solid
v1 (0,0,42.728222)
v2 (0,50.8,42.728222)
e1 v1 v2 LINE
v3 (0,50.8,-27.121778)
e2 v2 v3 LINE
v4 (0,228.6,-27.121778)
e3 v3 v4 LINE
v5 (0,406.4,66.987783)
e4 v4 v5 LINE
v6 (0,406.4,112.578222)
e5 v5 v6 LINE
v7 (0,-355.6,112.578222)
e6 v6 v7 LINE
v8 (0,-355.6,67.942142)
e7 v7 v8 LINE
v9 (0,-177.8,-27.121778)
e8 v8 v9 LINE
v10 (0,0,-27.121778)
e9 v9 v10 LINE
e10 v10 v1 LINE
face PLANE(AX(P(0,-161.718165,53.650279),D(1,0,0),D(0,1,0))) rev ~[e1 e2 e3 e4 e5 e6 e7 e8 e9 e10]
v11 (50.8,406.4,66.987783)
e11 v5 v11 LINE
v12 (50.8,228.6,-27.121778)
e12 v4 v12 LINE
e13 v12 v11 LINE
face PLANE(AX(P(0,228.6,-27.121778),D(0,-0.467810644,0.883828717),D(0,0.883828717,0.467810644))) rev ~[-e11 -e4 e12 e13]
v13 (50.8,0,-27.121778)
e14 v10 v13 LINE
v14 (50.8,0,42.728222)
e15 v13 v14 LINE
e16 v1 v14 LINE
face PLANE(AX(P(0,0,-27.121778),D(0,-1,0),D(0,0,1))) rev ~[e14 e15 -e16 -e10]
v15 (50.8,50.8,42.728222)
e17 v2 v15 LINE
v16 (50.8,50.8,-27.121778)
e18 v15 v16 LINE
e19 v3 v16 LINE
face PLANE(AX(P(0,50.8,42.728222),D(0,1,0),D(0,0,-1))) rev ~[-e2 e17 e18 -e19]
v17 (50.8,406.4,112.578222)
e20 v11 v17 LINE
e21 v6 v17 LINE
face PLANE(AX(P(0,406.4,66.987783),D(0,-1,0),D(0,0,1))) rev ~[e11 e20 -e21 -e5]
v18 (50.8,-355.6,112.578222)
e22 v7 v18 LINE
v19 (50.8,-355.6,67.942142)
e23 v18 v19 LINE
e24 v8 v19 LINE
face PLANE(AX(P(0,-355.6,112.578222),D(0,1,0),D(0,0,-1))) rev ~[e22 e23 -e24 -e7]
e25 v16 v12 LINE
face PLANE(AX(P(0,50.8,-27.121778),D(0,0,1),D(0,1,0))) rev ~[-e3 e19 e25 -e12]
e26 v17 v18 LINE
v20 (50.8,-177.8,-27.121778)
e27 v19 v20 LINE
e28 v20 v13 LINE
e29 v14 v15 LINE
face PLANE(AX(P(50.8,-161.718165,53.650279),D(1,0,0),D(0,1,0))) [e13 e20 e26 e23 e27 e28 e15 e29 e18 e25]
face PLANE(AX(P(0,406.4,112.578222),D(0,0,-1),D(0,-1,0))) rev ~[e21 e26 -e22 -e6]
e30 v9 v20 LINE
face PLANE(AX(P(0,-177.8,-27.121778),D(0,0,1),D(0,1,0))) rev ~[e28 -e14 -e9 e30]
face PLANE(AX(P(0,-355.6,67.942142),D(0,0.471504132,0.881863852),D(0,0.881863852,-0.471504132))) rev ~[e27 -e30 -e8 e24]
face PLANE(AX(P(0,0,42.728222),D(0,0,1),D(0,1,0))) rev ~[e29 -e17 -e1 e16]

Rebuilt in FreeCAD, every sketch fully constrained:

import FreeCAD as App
import Part
import Sketcher

V = App.Vector
Q = App.Units.Quantity


def add_polygon(sketch, points):
    """Adds a closed chain of lines whose ends are joined by coincident constraints."""
    first, n = sketch.GeometryCount, len(points)
    for a, b in zip(points, points[1:] + points[:1]):
        sketch.addGeometry(Part.LineSegment(App.Vector(*a, 0), App.Vector(*b, 0)), False)
    for i in range(n):
        sketch.addConstraint(Sketcher.Constraint("Coincident", first + i, 2, first + (i + 1) % n, 1))

doc = App.newDocument("Part")
body = doc.addObject("PartDesign::Body", "Body")

# Sketch on YZ plane
sketch1 = doc.addObject("Sketcher::SketchObject", "Sketch")
body.addObject(sketch1)
sketch1.AttachmentSupport = (doc.YZ_Plane, [""])
sketch1.MapMode = "FlatFace"
add_polygon(sketch1, [(-178, -27), (0, -27), (0, 43), (51, 43), (51, -27), (229, -27), (406, 67), (406, 113), (-356, 113), (-356, 68)])  # lines 0-9
sketch1.addConstraint([
    Sketcher.Constraint("Horizontal", 0),
    Sketcher.Constraint("Vertical", 1),
    Sketcher.Constraint("Horizontal", 2),
    Sketcher.Constraint("Vertical", 3),
    Sketcher.Constraint("Horizontal", 4),
    Sketcher.Constraint("Vertical", 6),
    Sketcher.Constraint("Horizontal", 7),
    Sketcher.Constraint("Vertical", 8),
    Sketcher.Constraint("PointOnObject", 0, 2, -2),
    Sketcher.Constraint("Horizontal", 0, 2, 3, 2),
    Sketcher.Constraint("Equal", 0, 4),
    Sketcher.Constraint("DistanceX", 0, 1, 0, 2, Q("7 in")),
    Sketcher.Constraint("DistanceX", 2, 1, 2, 2, Q("2 in")),
    Sketcher.Constraint("DistanceX", 7, 2, 7, 1, Q("30 in")),
    Sketcher.Constraint("DistanceX", -1, 1, 5, 2, Q("16 in")),
    Sketcher.Constraint("DistanceY", 1, 1, 1, 2, Q("2.75 in")),
    Sketcher.Constraint("DistanceY", 4, 2, 6, 2, Q("5.5 in")),
    Sketcher.Constraint("Distance", 5, Q("201.1702 mm")),
    Sketcher.Constraint("DistanceY", 8, 2, 8, 1, Q("44.63608 mm")),
    Sketcher.Constraint("DistanceY", -1, 1, 6, 2, Q("112.578222 mm")),
])
pad1 = doc.addObject("PartDesign::Pad", "Pad")
body.addObject(pad1)
pad1.Profile = sketch1
pad1.Length = Q("2 in")

doc.recompute()
